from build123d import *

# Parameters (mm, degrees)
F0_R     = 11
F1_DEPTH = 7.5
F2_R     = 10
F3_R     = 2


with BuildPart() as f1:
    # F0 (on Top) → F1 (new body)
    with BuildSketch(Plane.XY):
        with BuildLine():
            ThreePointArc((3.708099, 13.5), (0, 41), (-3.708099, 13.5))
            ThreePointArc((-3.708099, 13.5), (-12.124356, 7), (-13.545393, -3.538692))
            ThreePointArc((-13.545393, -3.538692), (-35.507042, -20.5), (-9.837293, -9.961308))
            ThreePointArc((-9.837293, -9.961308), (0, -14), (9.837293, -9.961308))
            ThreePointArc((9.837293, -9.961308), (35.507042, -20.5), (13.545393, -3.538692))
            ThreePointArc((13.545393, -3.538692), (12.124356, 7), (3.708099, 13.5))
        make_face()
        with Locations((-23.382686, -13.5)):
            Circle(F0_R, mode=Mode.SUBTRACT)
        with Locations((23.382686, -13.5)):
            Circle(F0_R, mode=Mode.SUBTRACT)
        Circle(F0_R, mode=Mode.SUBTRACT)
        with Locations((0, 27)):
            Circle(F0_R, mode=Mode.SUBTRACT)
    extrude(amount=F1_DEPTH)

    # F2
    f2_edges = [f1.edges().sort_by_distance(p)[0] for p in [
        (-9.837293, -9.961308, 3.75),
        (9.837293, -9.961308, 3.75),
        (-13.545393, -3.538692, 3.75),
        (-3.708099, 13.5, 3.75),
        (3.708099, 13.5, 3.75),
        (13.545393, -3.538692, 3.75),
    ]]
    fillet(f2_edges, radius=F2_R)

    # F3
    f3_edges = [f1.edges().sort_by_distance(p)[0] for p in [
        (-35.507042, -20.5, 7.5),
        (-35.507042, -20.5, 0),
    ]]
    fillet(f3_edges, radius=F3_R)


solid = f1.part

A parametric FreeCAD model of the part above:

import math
import FreeCAD as App
import Part
import Sketcher


def edges_at(feature, points):
    """Names of the edges that pass closest to the given points."""
    edges = feature.Shape.Edges
    near = lambda p: min(range(len(edges)), key=lambda i: edges[i].distToShape(Part.Vertex(*p))[0])
    return sorted({f"Edge{near(p) + 1}" for p in points})

doc = App.newDocument("Part")
body = doc.addObject("PartDesign::Body", "Body")

sketch1 = body.newObject("Sketcher::SketchObject", "Sketch")
sketch1.AttachmentSupport = (doc.getObject("XY_Plane"), [""])
sketch1.MapMode = "FlatFace"
sketch1.addGeometry(Part.ArcOfCircle(Part.Circle(App.Vector(0, 27, 0), App.Vector(0, 0, 1), 14), math.radians(-74.641115), math.radians(254.641115)), False)
sketch1.addGeometry(Part.ArcOfCircle(Part.Circle(App.Vector(-0.000001, 0, 0), App.Vector(0, 0, 1), 14), math.radians(105.358882), math.radians(194.641115)), False)
sketch1.addGeometry(Part.ArcOfCircle(Part.Circle(App.Vector(-23.382685, -13.500001, 0), App.Vector(0, 0, 1), 14), math.radians(45.358892), math.radians(374.641121)), False)
sketch1.addGeometry(Part.ArcOfCircle(Part.Circle(App.Vector(0, -0.000001, 0), App.Vector(0, 0, 1), 13.999999), math.radians(-134.641117), math.radians(-45.358883)), False)
sketch1.addGeometry(Part.ArcOfCircle(Part.Circle(App.Vector(23.382685, -13.500001, 0), App.Vector(0, 0, 1), 14), math.radians(165.358879), math.radians(494.641108)), False)
sketch1.addGeometry(Part.ArcOfCircle(Part.Circle(App.Vector(0.000001, 0, 0), App.Vector(0, 0, 1), 14), math.radians(-14.641115), math.radians(74.641118)), False)
sketch1.addGeometry(Part.Circle(App.Vector(-23.382686, -13.5, 0), App.Vector(0, 0, 1), 11), False)
sketch1.addGeometry(Part.Circle(App.Vector(23.382686, -13.5, 0), App.Vector(0, 0, 1), 11), False)
sketch1.addGeometry(Part.Circle(App.Vector(0, 0, 0), App.Vector(0, 0, 1), 11), False)
sketch1.addGeometry(Part.Circle(App.Vector(0, 27, 0), App.Vector(0, 0, 1), 11), False)
sketch1.addConstraint(Sketcher.Constraint("Coincident", 0, 2, 1, 1))
sketch1.addConstraint(Sketcher.Constraint("Coincident", 1, 2, 2, 1))
sketch1.addConstraint(Sketcher.Constraint("Coincident", 2, 2, 3, 1))
sketch1.addConstraint(Sketcher.Constraint("Coincident", 3, 2, 4, 1))
sketch1.addConstraint(Sketcher.Constraint("Coincident", 4, 2, 5, 1))
sketch1.addConstraint(Sketcher.Constraint("Coincident", 5, 2, 0, 1))
sketch1.addConstraint(Sketcher.Constraint("Coincident", 1, 3, -1, 1))
sketch1.addConstraint(Sketcher.Constraint("Coincident", 3, 3, -1, 1))
sketch1.addConstraint(Sketcher.Constraint("Coincident", 5, 3, -1, 1))
sketch1.addConstraint(Sketcher.Constraint("Coincident", 8, 3, -1, 1))
sketch1.addConstraint(Sketcher.Constraint("Coincident", 6, 3, 2, 3))
sketch1.addConstraint(Sketcher.Constraint("Coincident", 7, 3, 4, 3))
sketch1.addConstraint(Sketcher.Constraint("Coincident", 9, 3, 0, 3))
sketch1.addConstraint(Sketcher.Constraint("Equal", 0, 1))
sketch1.addConstraint(Sketcher.Constraint("Equal", 1, 2))
sketch1.addConstraint(Sketcher.Constraint("Equal", 2, 3))
sketch1.addConstraint(Sketcher.Constraint("Equal", 3, 4))
sketch1.addConstraint(Sketcher.Constraint("Equal", 4, 5))
sketch1.addConstraint(Sketcher.Constraint("Equal", 6, 7))
sketch1.addConstraint(Sketcher.Constraint("Equal", 7, 8))
sketch1.addConstraint(Sketcher.Constraint("Equal", 8, 9))
sketch1.addConstraint(Sketcher.Constraint("Symmetric", 2, 3, 4, 3, -2))
sketch1.addConstraint(Sketcher.Constraint("PointOnObject", 0, 3, -2))
sketch1.addConstraint(Sketcher.Constraint("Diameter", 6, 22.0))
sketch1.addConstraint(Sketcher.Constraint("Radius", 0, 14.0))
sketch1.addConstraint(Sketcher.Constraint("DistanceY", -1, 1, 0, 3, 27.0))
sketch1.addConstraint(Sketcher.Constraint("DistanceY", 2, 3, -1, 1, 13.500001))
sketch1.addConstraint(Sketcher.Constraint("DistanceX", 1, 2, 2, 2, 3.7081))
pad1 = body.newObject("PartDesign::Pad", "Pad")
pad1.Profile = sketch1
pad1.Length = 7.5
doc.recompute()

fillet = body.newObject("PartDesign::Fillet", "Fillet")
fillet.Base = (pad1, edges_at(pad1, [
    (-9.837, -9.961, 3.75),
    (9.837, -9.961, 3.75),
    (-13.545, -3.539, 3.75),
    (-3.708, 13.5, 3.75),
    (3.708, 13.5, 3.75),
    (13.545, -3.539, 3.75),
]))
fillet.Radius = 10
doc.recompute()

fillet2 = body.newObject("PartDesign::Fillet", "Fillet001")
fillet2.Base = (fillet, edges_at(fillet, [(-35.507, -20.5, 7.5), (-35.507, -20.5, 0)]))
fillet2.Radius = 2

doc.recompute()
